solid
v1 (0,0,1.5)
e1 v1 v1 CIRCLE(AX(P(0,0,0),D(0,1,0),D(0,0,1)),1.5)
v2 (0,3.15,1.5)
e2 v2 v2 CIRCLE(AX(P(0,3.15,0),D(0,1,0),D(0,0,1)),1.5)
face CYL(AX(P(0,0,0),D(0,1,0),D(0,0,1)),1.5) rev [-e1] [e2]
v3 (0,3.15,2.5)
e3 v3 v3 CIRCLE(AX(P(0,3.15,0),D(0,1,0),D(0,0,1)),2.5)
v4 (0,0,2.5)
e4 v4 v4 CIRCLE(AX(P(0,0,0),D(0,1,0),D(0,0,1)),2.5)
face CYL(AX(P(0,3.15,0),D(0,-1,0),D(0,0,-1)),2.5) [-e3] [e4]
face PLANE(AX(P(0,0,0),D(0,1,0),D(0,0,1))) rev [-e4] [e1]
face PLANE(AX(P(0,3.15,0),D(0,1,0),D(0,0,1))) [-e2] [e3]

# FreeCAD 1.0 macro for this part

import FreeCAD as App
import Part
import Sketcher

doc = App.newDocument("Part")
body = doc.addObject("PartDesign::Body", "Body")

# Sketch on XZ plane
sketch1 = body.newObject("Sketcher::SketchObject", "Sketch")
sketch1.AttachmentSupport = (doc.getObject("XZ_Plane"), [""])
sketch1.MapMode = "FlatFace"
sketch1.addGeometry(Part.Circle(App.Vector(0, 0, 0), App.Vector(0, 0, 1), 2.5), False)
sketch1.addConstraint([
    Sketcher.Constraint("Coincident", 0, 3, -1, 1),
    Sketcher.Constraint("Diameter", 0, 5.0),
])
pad1 = body.newObject("PartDesign::Pad", "Pad")
pad1.Profile = sketch1
pad1.Length = 3.15
pad1.Reversed = True

# Sketch on XZ plane
sketch2 = body.newObject("Sketcher::SketchObject", "Sketch001")
sketch2.AttachmentSupport = (doc.getObject("XZ_Plane"), [""])
sketch2.MapMode = "FlatFace"
sketch2.AttachmentOffset = App.Placement(App.Vector(0, 0, -3.15), App.Rotation())
sketch2.addGeometry(Part.Circle(App.Vector(0, 0, 0), App.Vector(0, 0, 1), 1.5), False)
sketch2.addConstraint([
    Sketcher.Constraint("Coincident", 0, 3, -1, 1),
    Sketcher.Constraint("Diameter", 0, 3.0),
])
pocket1 = body.newObject("PartDesign::Pocket", "Pocket")
pocket1.Profile = sketch2
pocket1.Type = "ThroughAll"
pocket1.Reversed = True

doc.recompute()
